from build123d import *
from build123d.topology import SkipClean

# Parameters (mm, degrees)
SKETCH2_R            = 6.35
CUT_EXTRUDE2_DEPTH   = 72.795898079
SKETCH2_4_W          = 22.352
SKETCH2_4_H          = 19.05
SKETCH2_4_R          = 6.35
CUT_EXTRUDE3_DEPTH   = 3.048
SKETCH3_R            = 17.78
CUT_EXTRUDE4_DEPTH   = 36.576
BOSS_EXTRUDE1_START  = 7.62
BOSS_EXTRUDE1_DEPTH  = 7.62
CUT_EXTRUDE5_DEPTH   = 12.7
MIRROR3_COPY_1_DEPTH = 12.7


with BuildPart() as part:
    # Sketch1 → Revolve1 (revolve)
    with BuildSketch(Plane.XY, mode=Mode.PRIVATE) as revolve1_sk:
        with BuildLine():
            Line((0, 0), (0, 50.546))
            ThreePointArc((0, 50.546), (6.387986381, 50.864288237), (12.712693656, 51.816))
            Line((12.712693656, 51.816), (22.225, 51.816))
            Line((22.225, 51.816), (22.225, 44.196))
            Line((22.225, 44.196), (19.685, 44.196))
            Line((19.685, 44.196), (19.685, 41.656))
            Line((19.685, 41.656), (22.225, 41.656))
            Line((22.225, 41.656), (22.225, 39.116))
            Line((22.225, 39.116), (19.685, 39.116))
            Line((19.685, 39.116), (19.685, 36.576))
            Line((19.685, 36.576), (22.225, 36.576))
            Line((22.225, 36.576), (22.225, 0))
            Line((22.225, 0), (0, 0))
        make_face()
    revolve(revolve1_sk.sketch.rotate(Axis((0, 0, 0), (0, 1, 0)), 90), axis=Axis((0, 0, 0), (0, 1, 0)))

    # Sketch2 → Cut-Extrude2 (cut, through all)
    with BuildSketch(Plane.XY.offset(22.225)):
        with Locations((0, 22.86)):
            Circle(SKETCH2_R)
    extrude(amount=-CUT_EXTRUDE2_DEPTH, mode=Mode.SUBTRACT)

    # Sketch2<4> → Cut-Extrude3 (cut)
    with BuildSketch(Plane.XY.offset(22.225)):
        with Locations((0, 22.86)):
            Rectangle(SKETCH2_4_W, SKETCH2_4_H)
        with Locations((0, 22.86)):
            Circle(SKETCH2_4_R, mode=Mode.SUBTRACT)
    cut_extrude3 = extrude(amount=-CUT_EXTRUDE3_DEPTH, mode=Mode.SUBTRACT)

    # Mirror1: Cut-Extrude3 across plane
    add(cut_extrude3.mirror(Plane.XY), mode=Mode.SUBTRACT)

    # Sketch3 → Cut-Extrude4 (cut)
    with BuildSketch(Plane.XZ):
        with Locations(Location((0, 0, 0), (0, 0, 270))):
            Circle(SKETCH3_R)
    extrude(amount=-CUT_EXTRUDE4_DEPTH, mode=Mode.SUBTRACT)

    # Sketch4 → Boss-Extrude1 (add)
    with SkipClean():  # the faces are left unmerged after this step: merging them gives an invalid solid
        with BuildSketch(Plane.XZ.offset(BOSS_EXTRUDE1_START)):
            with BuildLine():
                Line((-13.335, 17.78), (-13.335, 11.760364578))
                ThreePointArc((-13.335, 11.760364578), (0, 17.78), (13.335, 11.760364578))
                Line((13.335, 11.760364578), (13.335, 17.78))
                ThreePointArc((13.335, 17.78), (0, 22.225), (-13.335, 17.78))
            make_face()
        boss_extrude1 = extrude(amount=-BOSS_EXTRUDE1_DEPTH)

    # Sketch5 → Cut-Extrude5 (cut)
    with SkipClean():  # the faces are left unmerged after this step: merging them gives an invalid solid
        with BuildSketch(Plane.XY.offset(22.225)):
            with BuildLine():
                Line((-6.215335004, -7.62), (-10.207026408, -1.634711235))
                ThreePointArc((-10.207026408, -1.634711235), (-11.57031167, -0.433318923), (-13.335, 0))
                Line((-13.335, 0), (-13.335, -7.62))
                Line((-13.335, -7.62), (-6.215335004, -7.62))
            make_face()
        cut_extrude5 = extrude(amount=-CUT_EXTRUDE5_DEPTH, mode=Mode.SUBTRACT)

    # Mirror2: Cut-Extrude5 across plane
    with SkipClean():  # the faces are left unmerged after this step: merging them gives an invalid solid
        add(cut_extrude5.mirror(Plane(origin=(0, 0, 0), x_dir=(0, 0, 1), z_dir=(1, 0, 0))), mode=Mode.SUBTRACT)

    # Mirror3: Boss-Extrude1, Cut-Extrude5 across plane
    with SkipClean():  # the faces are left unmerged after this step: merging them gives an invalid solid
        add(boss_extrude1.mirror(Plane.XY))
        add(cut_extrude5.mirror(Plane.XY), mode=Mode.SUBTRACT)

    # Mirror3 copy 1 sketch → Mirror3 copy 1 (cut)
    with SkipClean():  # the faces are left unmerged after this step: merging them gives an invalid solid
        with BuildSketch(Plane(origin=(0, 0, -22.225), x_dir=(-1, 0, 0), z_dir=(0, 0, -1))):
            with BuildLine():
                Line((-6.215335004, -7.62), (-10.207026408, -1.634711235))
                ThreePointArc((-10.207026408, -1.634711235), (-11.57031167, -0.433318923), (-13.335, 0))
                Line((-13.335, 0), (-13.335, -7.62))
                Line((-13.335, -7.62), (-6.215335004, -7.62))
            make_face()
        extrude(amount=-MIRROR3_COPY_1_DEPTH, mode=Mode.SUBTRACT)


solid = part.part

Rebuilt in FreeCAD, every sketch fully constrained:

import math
import FreeCAD as App
import Part
import Sketcher

V = App.Vector
Q = App.Units.Quantity


def add_polygon(sketch, points):
    """Adds a closed chain of lines whose ends are joined by coincident constraints."""
    first, n = sketch.GeometryCount, len(points)
    for a, b in zip(points, points[1:] + points[:1]):
        sketch.addGeometry(Part.LineSegment(App.Vector(*a, 0), App.Vector(*b, 0)), False)
    for i in range(n):
        sketch.addConstraint(Sketcher.Constraint("Coincident", first + i, 2, first + (i + 1) % n, 1))

doc = App.newDocument("Part")
body = doc.addObject("PartDesign::Body", "Body")

sketch1 = doc.addObject("Sketcher::SketchObject", "Sketch")
body.addObject(sketch1)
sketch1.AttachmentSupport = (doc.XY_Plane, [""])
sketch1.MapMode = "FlatFace"
sketch1.addGeometry(Part.LineSegment(V(0, 50.5, 0), V(0, 0, 0)), False)
sketch1.addGeometry(Part.LineSegment(V(0, 0, 0), V(22.2, 0, 0)), False)
sketch1.addGeometry(Part.LineSegment(V(22.2, 0, 0), V(22.2, 36.6, 0)), False)
sketch1.addGeometry(Part.LineSegment(V(22.2, 36.6, 0), V(19.7, 36.6, 0)), False)
sketch1.addGeometry(Part.LineSegment(V(19.7, 36.6, 0), V(19.7, 39.1, 0)), False)
sketch1.addGeometry(Part.LineSegment(V(19.7, 39.1, 0), V(22.2, 39.1, 0)), False)
sketch1.addGeometry(Part.LineSegment(V(22.2, 39.1, 0), V(22.2, 41.7, 0)), False)
sketch1.addGeometry(Part.LineSegment(V(22.2, 41.7, 0), V(19.7, 41.7, 0)), False)
sketch1.addGeometry(Part.LineSegment(V(19.7, 41.7, 0), V(19.7, 44.2, 0)), False)
sketch1.addGeometry(Part.LineSegment(V(19.7, 44.2, 0), V(22.2, 44.2, 0)), False)
sketch1.addGeometry(Part.LineSegment(V(22.2, 44.2, 0), V(22.2, 51.8, 0)), False)
sketch1.addGeometry(Part.LineSegment(V(22.2, 51.8, 0), V(12.7, 51.8, 0)), False)
sketch1.addGeometry(Part.ArcOfCircle(Part.Circle(V(0, 114.8, 0), V(0, 0, 1), 64.3), math.radians(-90), math.radians(-78.59)), False)
sketch1.addConstraint(Sketcher.Constraint("Coincident", 0, 2, 1, 1))
sketch1.addConstraint(Sketcher.Constraint("Coincident", 1, 2, 2, 1))
sketch1.addConstraint(Sketcher.Constraint("Coincident", 2, 2, 3, 1))
sketch1.addConstraint(Sketcher.Constraint("Coincident", 3, 2, 4, 1))
sketch1.addConstraint(Sketcher.Constraint("Coincident", 4, 2, 5, 1))
sketch1.addConstraint(Sketcher.Constraint("Coincident", 5, 2, 6, 1))
sketch1.addConstraint(Sketcher.Constraint("Coincident", 6, 2, 7, 1))
sketch1.addConstraint(Sketcher.Constraint("Coincident", 7, 2, 8, 1))
sketch1.addConstraint(Sketcher.Constraint("Coincident", 8, 2, 9, 1))
sketch1.addConstraint(Sketcher.Constraint("Coincident", 9, 2, 10, 1))
sketch1.addConstraint(Sketcher.Constraint("Coincident", 10, 2, 11, 1))
sketch1.addConstraint(Sketcher.Constraint("Coincident", 11, 2, 12, 2))
sketch1.addConstraint(Sketcher.Constraint("Coincident", 12, 1, 0, 1))
sketch1.addConstraint(Sketcher.Constraint("Vertical", 0))
sketch1.addConstraint(Sketcher.Constraint("Horizontal", 1))
sketch1.addConstraint(Sketcher.Constraint("Vertical", 2))
sketch1.addConstraint(Sketcher.Constraint("Horizontal", 3))
sketch1.addConstraint(Sketcher.Constraint("Vertical", 4))
sketch1.addConstraint(Sketcher.Constraint("Horizontal", 5))
sketch1.addConstraint(Sketcher.Constraint("Vertical", 6))
sketch1.addConstraint(Sketcher.Constraint("Horizontal", 7))
sketch1.addConstraint(Sketcher.Constraint("Vertical", 8))
sketch1.addConstraint(Sketcher.Constraint("Horizontal", 9))
sketch1.addConstraint(Sketcher.Constraint("Vertical", 10))
sketch1.addConstraint(Sketcher.Constraint("Horizontal", 11))
sketch1.addConstraint(Sketcher.Constraint("Coincident", 0, 2, -1, 1))
sketch1.addConstraint(Sketcher.Constraint("PointOnObject", 12, 3, -2))
sketch1.addConstraint(Sketcher.Constraint("Vertical", 2, 2, 5, 2))
sketch1.addConstraint(Sketcher.Constraint("Vertical", 4, 2, 7, 2))
sketch1.addConstraint(Sketcher.Constraint("Vertical", 6, 2, 9, 2))
sketch1.addConstraint(Sketcher.Constraint("Equal", 9, 4))
sketch1.addConstraint(Sketcher.Constraint("Equal", 4, 6))
sketch1.addConstraint(Sketcher.Constraint("Equal", 6, 8))
sketch1.addConstraint(Sketcher.Constraint("Radius", 12, Q("2.53 in")))
sketch1.addConstraint(Sketcher.Constraint("DistanceX", 3, 2, 3, 1, Q("0.1 in")))
sketch1.addConstraint(Sketcher.Constraint("DistanceY", 10, 1, 10, 2, Q("0.3 in")))
sketch1.addConstraint(Sketcher.Constraint("DistanceY", 0, 2, 0, 1, Q("1.99 in")))
sketch1.addConstraint(Sketcher.Constraint("DistanceY", 2, 1, 2, 2, Q("1.44 in")))
sketch1.addConstraint(Sketcher.Constraint("DistanceX", 1, 1, 1, 2, Q("0.875 in")))
revolution = doc.addObject("PartDesign::Revolution", "Revolution")
body.addObject(revolution)
revolution.Profile = sketch1
revolution.ReferenceAxis = (sketch1, ["V_Axis"])
revolution.Angle = 360

sketch2 = doc.addObject("Sketcher::SketchObject", "Sketch001")
body.addObject(sketch2)
sketch2.AttachmentSupport = (doc.XY_Plane, [""])
sketch2.MapMode = "FlatFace"
sketch2.AttachmentOffset = App.Placement(V(0, 0, 0.875 * 25.4), App.Rotation())
sketch2.addGeometry(Part.Circle(V(0, 23, 0), V(0, 0, 1), 6), False)
sketch2.addConstraint(Sketcher.Constraint("PointOnObject", 0, 3, -2))
sketch2.addConstraint(Sketcher.Constraint("Diameter", 0, Q("0.5 in")))
sketch2.addConstraint(Sketcher.Constraint("DistanceY", -1, 1, 0, 3, Q("0.9 in")))
pocket1 = doc.addObject("PartDesign::Pocket", "Pocket")
body.addObject(pocket1)
pocket1.Profile = sketch2
pocket1.Type = "ThroughAll"

sketch3 = doc.addObject("Sketcher::SketchObject", "Sketch002")
body.addObject(sketch3)
sketch3.AttachmentSupport = (doc.XY_Plane, [""])
sketch3.MapMode = "FlatFace"
sketch3.AttachmentOffset = App.Placement(V(0, 0, 0.875 * 25.4), App.Rotation())
add_polygon(sketch3, [(-11, 32), (-11, 13), (11, 13), (11, 32)])
sketch3.addGeometry(Part.Circle(V(0, 23, 0), V(0, 0, 1), 6), False)
sketch3.addConstraint(Sketcher.Constraint("Vertical", 0))
sketch3.addConstraint(Sketcher.Constraint("Horizontal", 1))
sketch3.addConstraint(Sketcher.Constraint("Vertical", 2))
sketch3.addConstraint(Sketcher.Constraint("Horizontal", 3))
sketch3.addConstraint(Sketcher.Constraint("PointOnObject", 4, 3, -2))
sketch3.addConstraint(Sketcher.Constraint("Diameter", 4, Q("0.5 in")))
sketch3.addConstraint(Sketcher.Constraint("DistanceX", 1, 1, 1, 2, Q("0.88 in")))
sketch3.addConstraint(Sketcher.Constraint("DistanceY", 0, 2, 0, 1, Q("0.75 in")))
sketch3.addConstraint(Sketcher.Constraint("DistanceY", -1, 1, 4, 3, Q("0.9 in")))
sketch3.addConstraint(Sketcher.Constraint("DistanceX", 0, 2, -1, 1, Q("0.44 in")))
sketch3.addConstraint(Sketcher.Constraint("DistanceY", -1, 1, 0, 2, Q("0.525 in")))
pocket2 = doc.addObject("PartDesign::Pocket", "Pocket001")
body.addObject(pocket2)
pocket2.Profile = sketch3
pocket2.Length = Q("0.12 in")
doc.recompute()

mirrored = doc.addObject("PartDesign::Mirrored", "Mirrored")
body.addObject(mirrored)
mirrored.Originals = [pocket2]
mirrored.MirrorPlane = (doc.XY_Plane, [""])
body.Tip = mirrored

sketch4 = doc.addObject("Sketcher::SketchObject", "Sketch003")
body.addObject(sketch4)
sketch4.AttachmentSupport = (doc.XZ_Plane, [""])
sketch4.MapMode = "FlatFace"
sketch4.addGeometry(Part.Circle(V(0, 0, 0), V(0, 0, 1), 18), False)
sketch4.addConstraint(Sketcher.Constraint("Coincident", 0, 3, -1, 1))
sketch4.addConstraint(Sketcher.Constraint("Diameter", 0, Q("1.4 in")))
pocket3 = doc.addObject("PartDesign::Pocket", "Pocket002")
body.addObject(pocket3)
pocket3.Profile = sketch4
pocket3.Length = Q("1.44 in")

sketch5 = doc.addObject("Sketcher::SketchObject", "Sketch004")
body.addObject(sketch5)
sketch5.AttachmentSupport = (doc.XZ_Plane, [""])
sketch5.MapMode = "FlatFace"
sketch5.AttachmentOffset = App.Placement(V(0, 0, 0.3 * 25.4), App.Rotation())
sketch5.addGeometry(Part.LineSegment(V(-13, 18, 0), V(-13, 12, 0)), False)
sketch5.addGeometry(Part.ArcOfCircle(Part.Circle(V(0, 0, 0), V(0, 0, 1), 18), math.radians(41), math.radians(139)), False)
sketch5.addGeometry(Part.LineSegment(V(13, 12, 0), V(13, 18, 0)), False)
sketch5.addGeometry(Part.ArcOfCircle(Part.Circle(V(0, 0, 0), V(0, 0, 1), 22), math.radians(53), math.radians(127)), False)
sketch5.addConstraint(Sketcher.Constraint("Coincident", 0, 2, 1, 2))
sketch5.addConstraint(Sketcher.Constraint("Coincident", 1, 1, 2, 1))
sketch5.addConstraint(Sketcher.Constraint("Coincident", 2, 2, 3, 1))
sketch5.addConstraint(Sketcher.Constraint("Coincident", 3, 2, 0, 1))
sketch5.addConstraint(Sketcher.Constraint("Vertical", 0))
sketch5.addConstraint(Sketcher.Constraint("Vertical", 2))
sketch5.addConstraint(Sketcher.Constraint("Coincident", 1, 3, -1, 1))
sketch5.addConstraint(Sketcher.Constraint("Coincident", 3, 3, -1, 1))
sketch5.addConstraint(Sketcher.Constraint("Horizontal", 0, 2, 1, 1))
sketch5.addConstraint(Sketcher.Constraint("Radius", 1, Q("0.7 in")))
sketch5.addConstraint(Sketcher.Constraint("Radius", 3, Q("0.875 in")))
sketch5.addConstraint(Sketcher.Constraint("DistanceY", -1, 1, 2, 2, Q("0.7 in")))
pad1 = doc.addObject("PartDesign::Pad", "Pad")
body.addObject(pad1)
pad1.Profile = sketch5
pad1.Length = Q("0.3 in")
pad1.Reversed = True

sketch6 = doc.addObject("Sketcher::SketchObject", "Sketch005")
body.addObject(sketch6)
sketch6.AttachmentSupport = (doc.XY_Plane, [""])
sketch6.MapMode = "FlatFace"
sketch6.AttachmentOffset = App.Placement(V(0, 0, 0.875 * 25.4), App.Rotation())
sketch6.addGeometry(Part.LineSegment(V(-6.2, -7.6, 0), V(-10.2, -1.6, 0)), False)
sketch6.addGeometry(Part.ArcOfCircle(Part.Circle(V(-13.3, -3.8, 0), V(0, 0, 1), 3.8), math.radians(35), math.radians(90)), False)
sketch6.addGeometry(Part.LineSegment(V(-13.3, 0, 0), V(-13.3, -7.6, 0)), False)
sketch6.addGeometry(Part.LineSegment(V(-13.3, -7.6, 0), V(-6.2, -7.6, 0)), False)
sketch6.addConstraint(Sketcher.Constraint("Coincident", 0, 2, 1, 1))
sketch6.addConstraint(Sketcher.Constraint("Coincident", 1, 2, 2, 1))
sketch6.addConstraint(Sketcher.Constraint("Coincident", 2, 2, 3, 1))
sketch6.addConstraint(Sketcher.Constraint("Coincident", 3, 2, 0, 1))
sketch6.addConstraint(Sketcher.Constraint("Vertical", 2))
sketch6.addConstraint(Sketcher.Constraint("Horizontal", 3))
sketch6.addConstraint(Sketcher.Constraint("PointOnObject", 1, 2, -1))
sketch6.addConstraint(Sketcher.Constraint("Radius", 1, Q("0.15 in")))
sketch6.addConstraint(Sketcher.Constraint("DistanceY", 2, 2, 2, 1, Q("0.3 in")))
sketch6.addConstraint(Sketcher.Constraint("Angle", 0, Q("123.7 deg")))
sketch6.addConstraint(Sketcher.Constraint("DistanceX", 1, 3, -1, 1, Q("0.525 in")))
sketch6.addConstraint(Sketcher.Constraint("DistanceX", 1, 2, -1, 1, Q("0.525 in")))
sketch6.addConstraint(Sketcher.Constraint("DistanceX", 3, 1, 3, 2, 7.119665))
pocket4 = doc.addObject("PartDesign::Pocket", "Pocket003")
body.addObject(pocket4)
pocket4.Profile = sketch6
pocket4.Length = Q("0.5 in")
doc.recompute()

mirrored2 = doc.addObject("PartDesign::Mirrored", "Mirrored001")
body.addObject(mirrored2)
mirrored2.Originals = [pocket4]
mirrored2.MirrorPlane = (doc.YZ_Plane, [""])
body.Tip = mirrored2
doc.recompute()

mirrored3 = doc.addObject("PartDesign::Mirrored", "Mirrored002")
body.addObject(mirrored3)
mirrored3.Originals = [pad1, pocket4]
mirrored3.MirrorPlane = (doc.XY_Plane, [""])
body.Tip = mirrored3

sketch7 = doc.addObject("Sketcher::SketchObject", "Sketch006")
body.addObject(sketch7)
sketch7.AttachmentSupport = (doc.XY_Plane, [""])
sketch7.MapMode = "FlatFace"
sketch7.AttachmentOffset = App.Placement(V(0, 0, -0.875 * 25.4), App.Rotation())
sketch7.addGeometry(Part.LineSegment(V(6.2, -7.6, 0), V(10.2, -1.6, 0)), False)
sketch7.addGeometry(Part.ArcOfCircle(Part.Circle(V(13.3, -3.8, 0), V(0, 0, 1), 3.8), math.radians(90), math.radians(145)), False)
sketch7.addGeometry(Part.LineSegment(V(13.3, 0, 0), V(13.3, -7.6, 0)), False)
sketch7.addGeometry(Part.LineSegment(V(13.3, -7.6, 0), V(6.2, -7.6, 0)), False)
sketch7.addConstraint(Sketcher.Constraint("Coincident", 0, 2, 1, 2))
sketch7.addConstraint(Sketcher.Constraint("Coincident", 1, 1, 2, 1))
sketch7.addConstraint(Sketcher.Constraint("Coincident", 2, 2, 3, 1))
sketch7.addConstraint(Sketcher.Constraint("Coincident", 3, 2, 0, 1))
sketch7.addConstraint(Sketcher.Constraint("Vertical", 2))
sketch7.addConstraint(Sketcher.Constraint("Horizontal", 3))
sketch7.addConstraint(Sketcher.Constraint("PointOnObject", 1, 1, -1))
sketch7.addConstraint(Sketcher.Constraint("Radius", 1, Q("0.15 in")))
sketch7.addConstraint(Sketcher.Constraint("DistanceY", 2, 2, 2, 1, Q("0.3 in")))
sketch7.addConstraint(Sketcher.Constraint("Angle", 0, Q("56.3 deg")))
sketch7.addConstraint(Sketcher.Constraint("DistanceX", -1, 1, 1, 3, Q("0.525 in")))
sketch7.addConstraint(Sketcher.Constraint("DistanceX", -1, 1, 1, 1, Q("0.525 in")))
sketch7.addConstraint(Sketcher.Constraint("DistanceX", 3, 2, 3, 1, 7.119665))
pocket5 = doc.addObject("PartDesign::Pocket", "Pocket004")
body.addObject(pocket5)
pocket5.Profile = sketch7
pocket5.Length = Q("0.5 in")
pocket5.Reversed = True

doc.recompute()
